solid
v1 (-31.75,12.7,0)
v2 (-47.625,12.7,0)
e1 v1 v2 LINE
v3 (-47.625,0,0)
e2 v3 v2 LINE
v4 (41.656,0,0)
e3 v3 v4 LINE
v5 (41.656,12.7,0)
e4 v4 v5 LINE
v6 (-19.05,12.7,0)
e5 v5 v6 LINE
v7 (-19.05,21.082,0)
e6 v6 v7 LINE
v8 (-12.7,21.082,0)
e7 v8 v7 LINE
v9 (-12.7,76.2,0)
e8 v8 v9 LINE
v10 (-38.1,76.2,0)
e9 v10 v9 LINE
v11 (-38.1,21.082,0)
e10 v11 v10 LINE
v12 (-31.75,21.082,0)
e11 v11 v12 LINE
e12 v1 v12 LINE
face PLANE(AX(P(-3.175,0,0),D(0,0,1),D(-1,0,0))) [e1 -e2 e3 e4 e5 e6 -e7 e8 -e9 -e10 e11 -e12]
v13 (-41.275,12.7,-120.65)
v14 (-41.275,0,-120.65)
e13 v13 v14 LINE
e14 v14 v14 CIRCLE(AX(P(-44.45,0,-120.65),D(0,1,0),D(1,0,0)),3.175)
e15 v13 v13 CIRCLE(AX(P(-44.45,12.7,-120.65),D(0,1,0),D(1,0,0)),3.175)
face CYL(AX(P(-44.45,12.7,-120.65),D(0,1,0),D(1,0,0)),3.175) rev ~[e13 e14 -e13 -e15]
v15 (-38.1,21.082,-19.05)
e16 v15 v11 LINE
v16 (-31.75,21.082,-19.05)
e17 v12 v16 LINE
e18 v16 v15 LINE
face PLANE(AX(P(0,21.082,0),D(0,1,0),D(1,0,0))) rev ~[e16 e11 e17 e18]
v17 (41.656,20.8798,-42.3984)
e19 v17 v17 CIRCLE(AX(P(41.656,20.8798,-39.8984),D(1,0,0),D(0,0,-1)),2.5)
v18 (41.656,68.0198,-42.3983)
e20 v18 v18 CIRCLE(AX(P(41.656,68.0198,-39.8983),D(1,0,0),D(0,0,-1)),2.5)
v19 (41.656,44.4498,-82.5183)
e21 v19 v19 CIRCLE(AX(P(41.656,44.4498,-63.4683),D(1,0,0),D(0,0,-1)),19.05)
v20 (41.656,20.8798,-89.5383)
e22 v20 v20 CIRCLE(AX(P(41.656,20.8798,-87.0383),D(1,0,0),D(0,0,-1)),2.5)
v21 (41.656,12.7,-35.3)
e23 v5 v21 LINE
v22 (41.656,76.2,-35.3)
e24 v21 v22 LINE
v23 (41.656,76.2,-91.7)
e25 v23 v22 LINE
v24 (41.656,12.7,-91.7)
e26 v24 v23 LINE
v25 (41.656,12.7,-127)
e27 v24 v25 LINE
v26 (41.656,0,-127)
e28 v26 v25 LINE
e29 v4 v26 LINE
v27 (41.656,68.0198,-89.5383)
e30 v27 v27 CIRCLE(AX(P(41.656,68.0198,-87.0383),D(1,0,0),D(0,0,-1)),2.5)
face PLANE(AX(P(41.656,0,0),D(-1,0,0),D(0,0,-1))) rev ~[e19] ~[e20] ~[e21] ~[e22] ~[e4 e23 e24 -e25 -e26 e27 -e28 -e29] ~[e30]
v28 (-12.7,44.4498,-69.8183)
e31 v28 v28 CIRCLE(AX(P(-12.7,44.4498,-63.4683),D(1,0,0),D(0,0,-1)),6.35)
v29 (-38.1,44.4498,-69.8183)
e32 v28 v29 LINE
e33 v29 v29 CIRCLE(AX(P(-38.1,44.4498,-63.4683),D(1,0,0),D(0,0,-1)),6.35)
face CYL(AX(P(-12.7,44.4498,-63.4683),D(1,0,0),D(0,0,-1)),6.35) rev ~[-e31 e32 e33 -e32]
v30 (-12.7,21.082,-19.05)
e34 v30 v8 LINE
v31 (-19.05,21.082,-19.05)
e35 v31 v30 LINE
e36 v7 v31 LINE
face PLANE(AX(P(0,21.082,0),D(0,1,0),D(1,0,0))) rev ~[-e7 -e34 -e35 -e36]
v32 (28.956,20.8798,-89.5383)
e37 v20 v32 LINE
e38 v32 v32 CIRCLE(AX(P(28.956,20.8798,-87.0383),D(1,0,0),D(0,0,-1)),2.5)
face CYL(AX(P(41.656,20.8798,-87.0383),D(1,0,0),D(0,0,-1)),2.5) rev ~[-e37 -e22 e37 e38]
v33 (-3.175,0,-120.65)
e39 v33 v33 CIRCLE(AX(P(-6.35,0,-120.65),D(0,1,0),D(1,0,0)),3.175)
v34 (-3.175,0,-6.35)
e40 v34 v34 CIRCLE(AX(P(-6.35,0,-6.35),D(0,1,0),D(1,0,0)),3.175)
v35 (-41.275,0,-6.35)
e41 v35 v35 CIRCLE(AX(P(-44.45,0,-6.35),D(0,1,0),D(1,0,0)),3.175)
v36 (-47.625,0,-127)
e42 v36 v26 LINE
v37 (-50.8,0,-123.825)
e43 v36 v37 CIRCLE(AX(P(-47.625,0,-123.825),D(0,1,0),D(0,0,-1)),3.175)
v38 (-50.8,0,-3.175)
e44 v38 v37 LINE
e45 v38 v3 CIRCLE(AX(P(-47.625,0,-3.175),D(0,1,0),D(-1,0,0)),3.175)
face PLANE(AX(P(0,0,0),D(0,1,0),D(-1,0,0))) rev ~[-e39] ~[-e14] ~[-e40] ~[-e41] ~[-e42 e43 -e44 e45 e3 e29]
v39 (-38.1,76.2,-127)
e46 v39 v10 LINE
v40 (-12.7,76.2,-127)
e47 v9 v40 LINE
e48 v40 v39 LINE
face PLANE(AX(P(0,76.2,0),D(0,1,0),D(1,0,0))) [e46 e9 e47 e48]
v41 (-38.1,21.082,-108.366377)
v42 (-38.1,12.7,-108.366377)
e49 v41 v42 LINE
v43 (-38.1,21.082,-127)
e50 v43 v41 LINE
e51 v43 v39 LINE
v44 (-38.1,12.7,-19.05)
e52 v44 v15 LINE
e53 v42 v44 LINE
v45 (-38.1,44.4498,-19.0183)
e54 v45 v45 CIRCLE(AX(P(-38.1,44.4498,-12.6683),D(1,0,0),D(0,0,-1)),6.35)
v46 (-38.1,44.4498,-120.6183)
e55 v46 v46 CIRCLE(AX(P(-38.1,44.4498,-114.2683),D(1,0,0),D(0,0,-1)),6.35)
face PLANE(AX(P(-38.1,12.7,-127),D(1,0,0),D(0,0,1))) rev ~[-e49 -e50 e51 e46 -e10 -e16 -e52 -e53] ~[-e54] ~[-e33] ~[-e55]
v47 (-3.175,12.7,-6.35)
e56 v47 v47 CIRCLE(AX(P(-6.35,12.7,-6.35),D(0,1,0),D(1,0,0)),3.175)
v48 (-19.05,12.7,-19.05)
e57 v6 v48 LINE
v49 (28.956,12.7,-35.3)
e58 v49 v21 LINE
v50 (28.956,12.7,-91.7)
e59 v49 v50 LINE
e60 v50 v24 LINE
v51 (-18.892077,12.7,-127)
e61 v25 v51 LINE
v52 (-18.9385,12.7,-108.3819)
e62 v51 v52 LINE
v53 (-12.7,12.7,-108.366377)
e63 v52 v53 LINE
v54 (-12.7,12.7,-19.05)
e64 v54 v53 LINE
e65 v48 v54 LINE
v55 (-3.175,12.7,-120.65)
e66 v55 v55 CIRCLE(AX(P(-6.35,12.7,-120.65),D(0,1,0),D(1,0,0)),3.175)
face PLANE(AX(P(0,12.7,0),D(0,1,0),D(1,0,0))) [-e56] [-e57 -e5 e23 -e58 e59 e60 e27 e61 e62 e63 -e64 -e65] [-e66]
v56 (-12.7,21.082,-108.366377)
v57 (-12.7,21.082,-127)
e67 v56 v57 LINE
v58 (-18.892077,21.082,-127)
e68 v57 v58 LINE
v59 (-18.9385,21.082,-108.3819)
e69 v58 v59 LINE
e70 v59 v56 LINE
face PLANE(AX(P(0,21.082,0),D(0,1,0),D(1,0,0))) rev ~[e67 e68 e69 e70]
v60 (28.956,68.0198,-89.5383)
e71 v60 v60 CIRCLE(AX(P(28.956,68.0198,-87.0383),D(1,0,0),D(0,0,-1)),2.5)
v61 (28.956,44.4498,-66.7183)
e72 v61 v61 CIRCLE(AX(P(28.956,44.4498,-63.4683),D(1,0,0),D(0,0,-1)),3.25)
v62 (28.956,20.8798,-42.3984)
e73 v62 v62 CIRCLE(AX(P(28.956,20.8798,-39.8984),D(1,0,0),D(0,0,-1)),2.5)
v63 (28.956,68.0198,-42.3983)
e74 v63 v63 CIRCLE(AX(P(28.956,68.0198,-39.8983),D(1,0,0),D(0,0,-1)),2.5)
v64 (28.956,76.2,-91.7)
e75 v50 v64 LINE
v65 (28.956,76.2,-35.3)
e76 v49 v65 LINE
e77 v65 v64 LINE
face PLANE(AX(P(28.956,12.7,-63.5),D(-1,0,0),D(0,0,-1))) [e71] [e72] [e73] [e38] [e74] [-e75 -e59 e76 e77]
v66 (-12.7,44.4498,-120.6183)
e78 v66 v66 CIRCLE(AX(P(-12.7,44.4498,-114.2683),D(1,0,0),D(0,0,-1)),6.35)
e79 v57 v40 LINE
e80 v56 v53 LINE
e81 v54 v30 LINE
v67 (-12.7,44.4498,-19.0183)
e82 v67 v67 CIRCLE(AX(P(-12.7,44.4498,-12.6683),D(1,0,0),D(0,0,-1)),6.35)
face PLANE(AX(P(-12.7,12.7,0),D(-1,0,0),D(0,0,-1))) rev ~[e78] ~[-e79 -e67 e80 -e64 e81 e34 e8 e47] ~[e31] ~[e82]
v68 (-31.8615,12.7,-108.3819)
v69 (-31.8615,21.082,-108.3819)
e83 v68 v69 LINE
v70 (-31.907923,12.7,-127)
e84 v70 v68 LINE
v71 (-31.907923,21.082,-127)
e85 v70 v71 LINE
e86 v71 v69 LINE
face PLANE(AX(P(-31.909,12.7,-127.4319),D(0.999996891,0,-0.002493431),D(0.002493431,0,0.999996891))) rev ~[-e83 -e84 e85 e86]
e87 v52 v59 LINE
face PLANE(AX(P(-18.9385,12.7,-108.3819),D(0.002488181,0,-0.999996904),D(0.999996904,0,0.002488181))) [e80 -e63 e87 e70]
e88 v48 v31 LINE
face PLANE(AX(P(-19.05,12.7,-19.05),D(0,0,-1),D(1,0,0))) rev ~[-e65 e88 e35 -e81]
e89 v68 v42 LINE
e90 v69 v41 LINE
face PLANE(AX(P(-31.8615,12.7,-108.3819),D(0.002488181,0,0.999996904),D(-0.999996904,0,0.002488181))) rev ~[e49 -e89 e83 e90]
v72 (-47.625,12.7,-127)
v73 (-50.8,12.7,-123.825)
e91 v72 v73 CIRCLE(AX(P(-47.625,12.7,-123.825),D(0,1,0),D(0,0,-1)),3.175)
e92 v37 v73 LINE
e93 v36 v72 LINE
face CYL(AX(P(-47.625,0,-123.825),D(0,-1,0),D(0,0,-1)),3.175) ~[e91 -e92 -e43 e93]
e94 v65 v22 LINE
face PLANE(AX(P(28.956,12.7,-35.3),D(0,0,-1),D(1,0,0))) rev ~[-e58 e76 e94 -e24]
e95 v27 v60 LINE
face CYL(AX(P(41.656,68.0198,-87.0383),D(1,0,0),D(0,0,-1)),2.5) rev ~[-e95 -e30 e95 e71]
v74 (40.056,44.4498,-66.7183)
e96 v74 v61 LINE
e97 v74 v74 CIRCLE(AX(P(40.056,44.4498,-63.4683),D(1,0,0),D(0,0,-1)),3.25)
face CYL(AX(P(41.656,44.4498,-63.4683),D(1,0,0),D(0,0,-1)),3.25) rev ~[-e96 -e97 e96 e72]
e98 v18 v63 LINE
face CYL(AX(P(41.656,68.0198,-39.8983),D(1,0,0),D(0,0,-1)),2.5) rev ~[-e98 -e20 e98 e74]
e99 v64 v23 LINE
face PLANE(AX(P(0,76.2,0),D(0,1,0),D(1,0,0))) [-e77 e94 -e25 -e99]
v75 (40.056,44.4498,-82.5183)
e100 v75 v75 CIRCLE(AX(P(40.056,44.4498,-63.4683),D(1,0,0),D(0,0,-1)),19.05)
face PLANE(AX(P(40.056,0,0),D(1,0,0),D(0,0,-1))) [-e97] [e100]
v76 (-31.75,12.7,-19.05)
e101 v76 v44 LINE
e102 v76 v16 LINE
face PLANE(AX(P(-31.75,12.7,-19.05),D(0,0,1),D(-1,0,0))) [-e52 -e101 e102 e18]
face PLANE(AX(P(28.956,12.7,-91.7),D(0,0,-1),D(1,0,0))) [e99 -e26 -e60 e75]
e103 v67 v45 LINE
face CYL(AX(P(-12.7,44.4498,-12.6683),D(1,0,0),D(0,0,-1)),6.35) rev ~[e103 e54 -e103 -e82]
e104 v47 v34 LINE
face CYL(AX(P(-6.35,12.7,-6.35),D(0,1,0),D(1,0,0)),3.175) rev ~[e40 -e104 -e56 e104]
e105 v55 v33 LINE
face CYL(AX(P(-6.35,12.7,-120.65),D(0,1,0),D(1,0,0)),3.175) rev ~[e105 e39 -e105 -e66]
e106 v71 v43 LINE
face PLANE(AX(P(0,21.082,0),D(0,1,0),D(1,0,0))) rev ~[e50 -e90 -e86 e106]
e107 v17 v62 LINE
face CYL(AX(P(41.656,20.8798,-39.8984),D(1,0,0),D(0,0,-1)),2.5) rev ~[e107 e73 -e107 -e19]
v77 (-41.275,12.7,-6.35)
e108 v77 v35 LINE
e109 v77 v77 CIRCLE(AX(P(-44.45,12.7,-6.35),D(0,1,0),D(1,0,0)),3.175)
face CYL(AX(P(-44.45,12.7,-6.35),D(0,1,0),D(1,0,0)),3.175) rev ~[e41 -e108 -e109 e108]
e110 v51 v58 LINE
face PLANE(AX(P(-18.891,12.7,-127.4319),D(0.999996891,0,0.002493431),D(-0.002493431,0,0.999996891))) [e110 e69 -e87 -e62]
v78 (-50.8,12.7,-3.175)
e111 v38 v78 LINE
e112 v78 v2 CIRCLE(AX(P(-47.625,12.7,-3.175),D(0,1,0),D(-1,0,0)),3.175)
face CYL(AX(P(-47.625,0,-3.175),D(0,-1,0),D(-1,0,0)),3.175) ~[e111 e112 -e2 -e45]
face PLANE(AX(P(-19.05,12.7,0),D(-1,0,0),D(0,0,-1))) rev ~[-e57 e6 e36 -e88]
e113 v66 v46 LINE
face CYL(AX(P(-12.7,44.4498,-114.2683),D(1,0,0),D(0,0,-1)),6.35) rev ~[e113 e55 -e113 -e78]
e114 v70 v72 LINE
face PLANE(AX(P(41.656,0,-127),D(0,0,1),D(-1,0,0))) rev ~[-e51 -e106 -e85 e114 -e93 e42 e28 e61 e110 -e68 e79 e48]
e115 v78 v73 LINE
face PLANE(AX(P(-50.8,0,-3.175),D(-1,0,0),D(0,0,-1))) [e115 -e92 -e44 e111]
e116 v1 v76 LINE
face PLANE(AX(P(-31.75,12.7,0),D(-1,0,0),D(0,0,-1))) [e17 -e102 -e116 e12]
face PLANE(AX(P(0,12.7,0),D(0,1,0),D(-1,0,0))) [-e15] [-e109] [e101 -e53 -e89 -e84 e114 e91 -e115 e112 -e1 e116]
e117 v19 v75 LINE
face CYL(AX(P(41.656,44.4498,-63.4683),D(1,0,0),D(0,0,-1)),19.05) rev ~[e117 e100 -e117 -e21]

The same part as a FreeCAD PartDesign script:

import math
import FreeCAD as App
import Part
import Sketcher

V = App.Vector
Q = App.Units.Quantity

doc = App.newDocument("Part")
body = doc.addObject("PartDesign::Body", "Body")

sketch1 = body.newObject("Sketcher::SketchObject", "Sketch")
sketch1.AttachmentSupport = (doc.getObject("XZ_Plane"), [""])
sketch1.MapMode = "FlatFace"
sketch1.addGeometry([
    Part.LineSegment(V(-47.625, 0, 0), V(41.656, 0, 0)),
    Part.LineSegment(V(41.656, 0, 0), V(41.656, -127, 0)),
    Part.LineSegment(V(41.656, -127, 0), V(-47.625, -127, 0)),
    Part.ArcOfCircle(Part.Circle(V(-47.625, -123.825, 0), V(0, 0, 1), 3.175), math.radians(180), math.radians(270)),
    Part.LineSegment(V(-50.8, -123.825, 0), V(-50.8, -3.175, 0)),
    Part.ArcOfCircle(Part.Circle(V(-47.625, -3.175, 0), V(0, 0, 1), 3.175), math.radians(90), math.radians(180)),
], False)
sketch1.addConstraint([
    Sketcher.Constraint("Coincident", 0, 2, 1, 1),
    Sketcher.Constraint("Coincident", 1, 2, 2, 1),
    Sketcher.Constraint("Tangent", 2, 2, 3, 2),
    Sketcher.Constraint("Tangent", 3, 1, 4, 1),
    Sketcher.Constraint("Tangent", 4, 2, 5, 2),
    Sketcher.Constraint("Tangent", 5, 1, 0, 1),
    Sketcher.Constraint("Horizontal", 0),
    Sketcher.Constraint("Vertical", 1),
    Sketcher.Constraint("Horizontal", 2),
    Sketcher.Constraint("Vertical", 4),
    Sketcher.Constraint("Equal", 3, 5),
    Sketcher.Constraint("PointOnObject", 0, 2, -1),
    Sketcher.Constraint("DistanceY", 1, 2, 1, 1, Q("5 in")),
    Sketcher.Constraint("DistanceX", 3, 1, -1, 1, Q("2 in")),
    Sketcher.Constraint("Radius", 3, Q("0.125 in")),
    Sketcher.Constraint("DistanceX", -1, 1, 0, 2, Q("1.64 in")),
])
pad1 = body.newObject("PartDesign::Pad", "Pad")
pad1.Profile = sketch1
pad1.Length = Q("0.5 in")
pad1.Reversed = True

sketch2 = body.newObject("Sketcher::SketchObject", "Sketch001")
sketch2.AttachmentSupport = (doc.getObject("XZ_Plane"), [""])
sketch2.MapMode = "FlatFace"
sketch2.AttachmentOffset = App.Placement(V(0, 0, -0.5 * 25.4), App.Rotation())
sketch2.addGeometry([
    Part.Circle(V(-6.35, -6.35, 0), V(0, 0, 1), 3.175),
    Part.Circle(V(-6.35, -120.65, 0), V(0, 0, 1), 3.175),
    Part.Circle(V(-44.45, -6.35, 0), V(0, 0, 1), 3.175),
    Part.Circle(V(-44.45, -120.65, 0), V(0, 0, 1), 3.175),
], False)
sketch2.addConstraint([
    Sketcher.Constraint("Equal", 0, 1),
    Sketcher.Constraint("Equal", 1, 2),
    Sketcher.Constraint("Equal", 2, 3),
    Sketcher.Constraint("Horizontal", 0, 3, 2, 3),
    Sketcher.Constraint("Horizontal", 1, 3, 3, 3),
    Sketcher.Constraint("Vertical", 0, 3, 1, 3),
    Sketcher.Constraint("Vertical", 2, 3, 3, 3),
    Sketcher.Constraint("Diameter", 0, Q("0.25 in")),
    Sketcher.Constraint("DistanceX", 0, 3, -1, 1, Q("0.25 in")),
    Sketcher.Constraint("DistanceY", 0, 3, -1, 1, Q("0.25 in")),
    Sketcher.Constraint("DistanceY", 1, 3, 0, 3, Q("4.5 in")),
    Sketcher.Constraint("DistanceX", 2, 3, 0, 3, Q("1.5 in")),
])
pocket1 = body.newObject("PartDesign::Pocket", "Pocket")
pocket1.Profile = sketch2
pocket1.Type = "ThroughAll"
pocket1.Reversed = True

sketch3 = body.newObject("Sketcher::SketchObject", "Sketch002")
sketch3.AttachmentSupport = (doc.getObject("XZ_Plane"), [""])
sketch3.MapMode = "FlatFace"
sketch3.AttachmentOffset = App.Placement(V(0, 0, -0.5 * 25.4), App.Rotation())
sketch3.addGeometry([
    Part.LineSegment(V(-38.1, -127, 0), V(-38.1, 0, 0)),
    Part.LineSegment(V(-38.1, 0, 0), V(-12.7, 0, 0)),
    Part.LineSegment(V(-12.7, 0, 0), V(-12.7, -127, 0)),
    Part.LineSegment(V(-12.7, -127, 0), V(-38.1, -127, 0)),
], False)
sketch3.addConstraint([
    Sketcher.Constraint("Coincident", 0, 2, 1, 1),
    Sketcher.Constraint("Coincident", 1, 2, 2, 1),
    Sketcher.Constraint("Coincident", 2, 2, 3, 1),
    Sketcher.Constraint("Coincident", 3, 2, 0, 1),
    Sketcher.Constraint("Vertical", 0),
    Sketcher.Constraint("Horizontal", 1),
    Sketcher.Constraint("Vertical", 2),
    Sketcher.Constraint("Horizontal", 3),
    Sketcher.Constraint("PointOnObject", 0, 2, -1),
    Sketcher.Constraint("DistanceX", 1, 1, 1, 2, Q("1 in")),
    Sketcher.Constraint("DistanceX", 1, 2, -1, 1, Q("0.5 in")),
    Sketcher.Constraint("DistanceY", 0, 1, 0, 2, Q("5 in")),
])
pad2 = body.newObject("PartDesign::Pad", "Pad001")
pad2.Profile = sketch3
pad2.Length = Q("2.5 in")
pad2.Reversed = True

sketch4 = body.newObject("Sketcher::SketchObject", "Sketch003")
sketch4.AttachmentSupport = (doc.getObject("YZ_Plane"), [""])
sketch4.MapMode = "FlatFace"
sketch4.AttachmentOffset = App.Placement(V(0, 0, -0.5 * 25.4), App.Rotation())
sketch4.addGeometry([
    Part.Circle(V(44.4498, -63.4683, 0), V(0, 0, 1), 6.35),
    Part.Circle(V(44.4498, -12.6683, 0), V(0, 0, 1), 6.35),
    Part.Circle(V(44.4498, -114.2683, 0), V(0, 0, 1), 6.35),
], False)
sketch4.addConstraint([
    Sketcher.Constraint("Equal", 0, 1),
    Sketcher.Constraint("Equal", 1, 2),
    Sketcher.Constraint("Vertical", 0, 3, 1, 3),
    Sketcher.Constraint("Vertical", 1, 3, 2, 3),
    Sketcher.Constraint("Diameter", 0, Q("0.5 in")),
    Sketcher.Constraint("DistanceY", 0, 3, 1, 3, Q("2 in")),
    Sketcher.Constraint("DistanceY", 2, 3, 0, 3, Q("2 in")),
    Sketcher.Constraint("DistanceX", -1, 1, 0, 3, Q("1.75 in")),
    Sketcher.Constraint("DistanceY", 0, 3, -1, 1, 63.4683),
])
pocket2 = body.newObject("PartDesign::Pocket", "Pocket001")
pocket2.Profile = sketch4
pocket2.Type = "ThroughAll"

sketch5 = body.newObject("Sketcher::SketchObject", "Sketch004")
sketch5.AttachmentSupport = (doc.getObject("XZ_Plane"), [""])
sketch5.MapMode = "FlatFace"
sketch5.AttachmentOffset = App.Placement(V(0, 0, -0.5 * 25.4), App.Rotation())
sketch5.addGeometry([
    Part.LineSegment(V(-19.05, 0, 0), V(-12.7, 0, 0)),
    Part.LineSegment(V(-12.7, 0, 0), V(-12.7, -19.05, 0)),
    Part.LineSegment(V(-12.7, -19.05, 0), V(-19.05, -19.05, 0)),
    Part.LineSegment(V(-19.05, -19.05, 0), V(-19.05, 0, 0)),
    Part.LineSegment(V(-12.5885, -108.3661, 0), V(-12.541, -127.416, 0)),
    Part.LineSegment(V(-12.541, -127.416, 0), V(-18.891, -127.4319, 0)),
    Part.LineSegment(V(-18.891, -127.4319, 0), V(-18.9385, -108.3819, 0)),
    Part.LineSegment(V(-18.9385, -108.3819, 0), V(-12.5885, -108.3661, 0)),
    Part.LineSegment(V(-38.1, -19.05, 0), V(-38.1, 0, 0)),
    Part.LineSegment(V(-38.1, 0, 0), V(-31.75, 0, 0)),
    Part.LineSegment(V(-31.75, 0, 0), V(-31.75, -19.05, 0)),
    Part.LineSegment(V(-31.75, -19.05, 0), V(-38.1, -19.05, 0)),
    Part.LineSegment(V(-31.909, -127.4319, 0), V(-38.259, -127.416, 0)),
    Part.LineSegment(V(-38.259, -127.416, 0), V(-38.2115, -108.3661, 0)),
    Part.LineSegment(V(-38.2115, -108.3661, 0), V(-31.8615, -108.3819, 0)),
    Part.LineSegment(V(-31.8615, -108.3819, 0), V(-31.909, -127.4319, 0)),
], False)
sketch5.addConstraint([
    Sketcher.Constraint("Coincident", 0, 2, 1, 1),
    Sketcher.Constraint("Coincident", 1, 2, 2, 1),
    Sketcher.Constraint("Coincident", 2, 2, 3, 1),
    Sketcher.Constraint("Coincident", 3, 2, 0, 1),
    Sketcher.Constraint("Coincident", 4, 2, 5, 1),
    Sketcher.Constraint("Coincident", 5, 2, 6, 1),
    Sketcher.Constraint("Coincident", 6, 2, 7, 1),
    Sketcher.Constraint("Coincident", 7, 2, 4, 1),
    Sketcher.Constraint("Coincident", 8, 2, 9, 1),
    Sketcher.Constraint("Coincident", 9, 2, 10, 1),
    Sketcher.Constraint("Coincident", 10, 2, 11, 1),
    Sketcher.Constraint("Coincident", 11, 2, 8, 1),
    Sketcher.Constraint("Coincident", 12, 2, 13, 1),
    Sketcher.Constraint("Coincident", 13, 2, 14, 1),
    Sketcher.Constraint("Coincident", 14, 2, 15, 1),
    Sketcher.Constraint("Coincident", 15, 2, 12, 1),
    Sketcher.Constraint("Horizontal", 0),
    Sketcher.Constraint("Vertical", 1),
    Sketcher.Constraint("Horizontal", 2),
    Sketcher.Constraint("Vertical", 3),
    Sketcher.Constraint("Vertical", 8),
    Sketcher.Constraint("Horizontal", 9),
    Sketcher.Constraint("Vertical", 10),
    Sketcher.Constraint("Horizontal", 11),
    Sketcher.Constraint("PointOnObject", 0, 2, -1),
    Sketcher.Constraint("PointOnObject", 8, 2, -1),
    Sketcher.Constraint("Perpendicular", 4, 5),
    Sketcher.Constraint("Perpendicular", 5, 6),
    Sketcher.Constraint("Perpendicular", 6, 7),
    Sketcher.Constraint("Perpendicular", 12, 13),
    Sketcher.Constraint("Perpendicular", 13, 14),
    Sketcher.Constraint("Perpendicular", 14, 15),
    Sketcher.Constraint("Horizontal", 2, 2, 10, 2),
    Sketcher.Constraint("Horizontal", 4, 2, 12, 2),
    Sketcher.Constraint("Horizontal", 7, 2, 13, 2),
    Sketcher.Constraint("Horizontal", 6, 2, 14, 2),
    Sketcher.Constraint("Equal", 2, 9),
    Sketcher.Constraint("Equal", 7, 12),
    Sketcher.Constraint("DistanceX", 0, 1, 0, 2, Q("0.25 in")),
    Sketcher.Constraint("DistanceY", 1, 2, 1, 1, Q("0.75 in")),
    Sketcher.Constraint("Distance", 4, Q("0.75 in")),
    Sketcher.Constraint("Distance", 5, Q("0.25 in")),
    Sketcher.Constraint("DistanceX", 2, 2, -1, 1, Q("0.75 in")),
    Sketcher.Constraint("DistanceX", 8, 2, 3, 2, Q("0.75 in")),
    Sketcher.Constraint("DistanceY", 5, 2, -1, 1, Q("5.017 in")),
    Sketcher.Constraint("DistanceX", 6, 2, -1, 1, Q("0.7456 in")),
    Sketcher.Constraint("DistanceX", 13, 2, -1, 1, Q("1.5044 in")),
    Sketcher.Constraint("DistanceX", 4, 2, -1, 1, 12.541),
])
pocket3 = body.newObject("PartDesign::Pocket", "Pocket002")
pocket3.Profile = sketch5
pocket3.Length = Q("0.33 in")

sketch6 = body.newObject("Sketcher::SketchObject", "Sketch005")
sketch6.AttachmentSupport = (doc.getObject("XZ_Plane"), [""])
sketch6.MapMode = "FlatFace"
sketch6.AttachmentOffset = App.Placement(V(0, 0, -0.5 * 25.4), App.Rotation())
sketch6.addGeometry([
    Part.LineSegment(V(28.956, -35.3, 0), V(41.656, -35.3, 0)),
    Part.LineSegment(V(41.656, -35.3, 0), V(41.656, -91.7, 0)),
    Part.LineSegment(V(41.656, -91.7, 0), V(28.956, -91.7, 0)),
    Part.LineSegment(V(28.956, -91.7, 0), V(28.956, -35.3, 0)),
], False)
sketch6.addConstraint([
    Sketcher.Constraint("Coincident", 0, 2, 1, 1),
    Sketcher.Constraint("Coincident", 1, 2, 2, 1),
    Sketcher.Constraint("Coincident", 2, 2, 3, 1),
    Sketcher.Constraint("Coincident", 3, 2, 0, 1),
    Sketcher.Constraint("Horizontal", 0),
    Sketcher.Constraint("Vertical", 1),
    Sketcher.Constraint("Horizontal", 2),
    Sketcher.Constraint("Vertical", 3),
    Sketcher.Constraint("DistanceX", 0, 1, 0, 2, Q("0.5 in")),
    Sketcher.Constraint("DistanceX", -1, 1, 0, 2, Q("1.64 in")),
    Sketcher.Constraint("DistanceY", 1, 2, 1, 1, 56.4),
    Sketcher.Constraint("DistanceY", 0, 2, -1, 1, 35.3),
])
pad3 = body.newObject("PartDesign::Pad", "Pad002")
pad3.Profile = sketch6
pad3.Length = Q("2.5 in")
pad3.Reversed = True

sketch7 = body.newObject("Sketcher::SketchObject", "Sketch006")
sketch7.AttachmentSupport = (doc.getObject("YZ_Plane"), [""])
sketch7.MapMode = "FlatFace"
sketch7.AttachmentOffset = App.Placement(V(0, 0, 1.64 * 25.4), App.Rotation())
sketch7.addGeometry(Part.Circle(V(44.4498, -63.4683, 0), V(0, 0, 1), 19.05), False)
sketch7.addConstraint([
    Sketcher.Constraint("Diameter", 0, Q("1.5 in")),
    Sketcher.Constraint("DistanceX", -1, 1, 0, 3, Q("1.75 in")),
    Sketcher.Constraint("DistanceY", 0, 3, -1, 1, 63.4683),
])
pocket4 = body.newObject("PartDesign::Pocket", "Pocket003")
pocket4.Profile = sketch7
pocket4.Length = Q("0.0629921 in")

sketch8 = body.newObject("Sketcher::SketchObject", "Sketch007")
sketch8.AttachmentSupport = (doc.getObject("YZ_Plane"), [""])
sketch8.MapMode = "FlatFace"
sketch8.AttachmentOffset = App.Placement(V(0, 0, 1.64 * 25.4), App.Rotation())
sketch8.addGeometry(Part.Circle(V(44.4498, -63.4683, 0), V(0, 0, 1), 3.25), False)
sketch8.addConstraint([
    Sketcher.Constraint("Diameter", 0, Q("0.2559 in")),
    Sketcher.Constraint("DistanceX", -1, 1, 0, 3, Q("1.75 in")),
    Sketcher.Constraint("DistanceY", 0, 3, -1, 1, 63.4683),
])
pocket5 = body.newObject("PartDesign::Pocket", "Pocket004")
pocket5.Profile = sketch8
pocket5.Type = "ThroughAll"

sketch9 = body.newObject("Sketcher::SketchObject", "Sketch008")
sketch9.AttachmentSupport = (doc.getObject("YZ_Plane"), [""])
sketch9.MapMode = "FlatFace"
sketch9.AttachmentOffset = App.Placement(V(0, 0, 1.64 * 25.4), App.Rotation())
sketch9.addGeometry([
    Part.Circle(V(20.8798, -87.0383, 0), V(0, 0, 1), 2.5),
    Part.Circle(V(20.8798, -39.8984, 0), V(0, 0, 1), 2.5),
    Part.Circle(V(68.0198, -39.8983, 0), V(0, 0, 1), 2.5),
    Part.Circle(V(68.0198, -87.0383, 0), V(0, 0, 1), 2.5),
], False)
sketch9.addConstraint([
    Sketcher.Constraint("Equal", 0, 1),
    Sketcher.Constraint("Equal", 1, 2),
    Sketcher.Constraint("Equal", 2, 3),
    Sketcher.Constraint("Horizontal", 1, 3, 2, 3),
    Sketcher.Constraint("Horizontal", 0, 3, 3, 3),
    Sketcher.Constraint("Vertical", 0, 3, 1, 3),
    Sketcher.Constraint("Vertical", 2, 3, 3, 3),
    Sketcher.Constraint("Diameter", 0, 5.0),
    Sketcher.Constraint("DistanceY", 0, 3, 1, 3, Q("1.8559 in")),
    Sketcher.Constraint("DistanceX", 1, 3, 2, 3, Q("1.8559 in")),
    Sketcher.Constraint("DistanceY", 0, 3, -1, 1, Q("3.4267 in")),
    Sketcher.Constraint("DistanceX", -1, 1, 0, 3, 20.8798),
])
pocket6 = body.newObject("PartDesign::Pocket", "Pocket005")
pocket6.Profile = sketch9
pocket6.Length = Q("0.5 in")

doc.recompute()
